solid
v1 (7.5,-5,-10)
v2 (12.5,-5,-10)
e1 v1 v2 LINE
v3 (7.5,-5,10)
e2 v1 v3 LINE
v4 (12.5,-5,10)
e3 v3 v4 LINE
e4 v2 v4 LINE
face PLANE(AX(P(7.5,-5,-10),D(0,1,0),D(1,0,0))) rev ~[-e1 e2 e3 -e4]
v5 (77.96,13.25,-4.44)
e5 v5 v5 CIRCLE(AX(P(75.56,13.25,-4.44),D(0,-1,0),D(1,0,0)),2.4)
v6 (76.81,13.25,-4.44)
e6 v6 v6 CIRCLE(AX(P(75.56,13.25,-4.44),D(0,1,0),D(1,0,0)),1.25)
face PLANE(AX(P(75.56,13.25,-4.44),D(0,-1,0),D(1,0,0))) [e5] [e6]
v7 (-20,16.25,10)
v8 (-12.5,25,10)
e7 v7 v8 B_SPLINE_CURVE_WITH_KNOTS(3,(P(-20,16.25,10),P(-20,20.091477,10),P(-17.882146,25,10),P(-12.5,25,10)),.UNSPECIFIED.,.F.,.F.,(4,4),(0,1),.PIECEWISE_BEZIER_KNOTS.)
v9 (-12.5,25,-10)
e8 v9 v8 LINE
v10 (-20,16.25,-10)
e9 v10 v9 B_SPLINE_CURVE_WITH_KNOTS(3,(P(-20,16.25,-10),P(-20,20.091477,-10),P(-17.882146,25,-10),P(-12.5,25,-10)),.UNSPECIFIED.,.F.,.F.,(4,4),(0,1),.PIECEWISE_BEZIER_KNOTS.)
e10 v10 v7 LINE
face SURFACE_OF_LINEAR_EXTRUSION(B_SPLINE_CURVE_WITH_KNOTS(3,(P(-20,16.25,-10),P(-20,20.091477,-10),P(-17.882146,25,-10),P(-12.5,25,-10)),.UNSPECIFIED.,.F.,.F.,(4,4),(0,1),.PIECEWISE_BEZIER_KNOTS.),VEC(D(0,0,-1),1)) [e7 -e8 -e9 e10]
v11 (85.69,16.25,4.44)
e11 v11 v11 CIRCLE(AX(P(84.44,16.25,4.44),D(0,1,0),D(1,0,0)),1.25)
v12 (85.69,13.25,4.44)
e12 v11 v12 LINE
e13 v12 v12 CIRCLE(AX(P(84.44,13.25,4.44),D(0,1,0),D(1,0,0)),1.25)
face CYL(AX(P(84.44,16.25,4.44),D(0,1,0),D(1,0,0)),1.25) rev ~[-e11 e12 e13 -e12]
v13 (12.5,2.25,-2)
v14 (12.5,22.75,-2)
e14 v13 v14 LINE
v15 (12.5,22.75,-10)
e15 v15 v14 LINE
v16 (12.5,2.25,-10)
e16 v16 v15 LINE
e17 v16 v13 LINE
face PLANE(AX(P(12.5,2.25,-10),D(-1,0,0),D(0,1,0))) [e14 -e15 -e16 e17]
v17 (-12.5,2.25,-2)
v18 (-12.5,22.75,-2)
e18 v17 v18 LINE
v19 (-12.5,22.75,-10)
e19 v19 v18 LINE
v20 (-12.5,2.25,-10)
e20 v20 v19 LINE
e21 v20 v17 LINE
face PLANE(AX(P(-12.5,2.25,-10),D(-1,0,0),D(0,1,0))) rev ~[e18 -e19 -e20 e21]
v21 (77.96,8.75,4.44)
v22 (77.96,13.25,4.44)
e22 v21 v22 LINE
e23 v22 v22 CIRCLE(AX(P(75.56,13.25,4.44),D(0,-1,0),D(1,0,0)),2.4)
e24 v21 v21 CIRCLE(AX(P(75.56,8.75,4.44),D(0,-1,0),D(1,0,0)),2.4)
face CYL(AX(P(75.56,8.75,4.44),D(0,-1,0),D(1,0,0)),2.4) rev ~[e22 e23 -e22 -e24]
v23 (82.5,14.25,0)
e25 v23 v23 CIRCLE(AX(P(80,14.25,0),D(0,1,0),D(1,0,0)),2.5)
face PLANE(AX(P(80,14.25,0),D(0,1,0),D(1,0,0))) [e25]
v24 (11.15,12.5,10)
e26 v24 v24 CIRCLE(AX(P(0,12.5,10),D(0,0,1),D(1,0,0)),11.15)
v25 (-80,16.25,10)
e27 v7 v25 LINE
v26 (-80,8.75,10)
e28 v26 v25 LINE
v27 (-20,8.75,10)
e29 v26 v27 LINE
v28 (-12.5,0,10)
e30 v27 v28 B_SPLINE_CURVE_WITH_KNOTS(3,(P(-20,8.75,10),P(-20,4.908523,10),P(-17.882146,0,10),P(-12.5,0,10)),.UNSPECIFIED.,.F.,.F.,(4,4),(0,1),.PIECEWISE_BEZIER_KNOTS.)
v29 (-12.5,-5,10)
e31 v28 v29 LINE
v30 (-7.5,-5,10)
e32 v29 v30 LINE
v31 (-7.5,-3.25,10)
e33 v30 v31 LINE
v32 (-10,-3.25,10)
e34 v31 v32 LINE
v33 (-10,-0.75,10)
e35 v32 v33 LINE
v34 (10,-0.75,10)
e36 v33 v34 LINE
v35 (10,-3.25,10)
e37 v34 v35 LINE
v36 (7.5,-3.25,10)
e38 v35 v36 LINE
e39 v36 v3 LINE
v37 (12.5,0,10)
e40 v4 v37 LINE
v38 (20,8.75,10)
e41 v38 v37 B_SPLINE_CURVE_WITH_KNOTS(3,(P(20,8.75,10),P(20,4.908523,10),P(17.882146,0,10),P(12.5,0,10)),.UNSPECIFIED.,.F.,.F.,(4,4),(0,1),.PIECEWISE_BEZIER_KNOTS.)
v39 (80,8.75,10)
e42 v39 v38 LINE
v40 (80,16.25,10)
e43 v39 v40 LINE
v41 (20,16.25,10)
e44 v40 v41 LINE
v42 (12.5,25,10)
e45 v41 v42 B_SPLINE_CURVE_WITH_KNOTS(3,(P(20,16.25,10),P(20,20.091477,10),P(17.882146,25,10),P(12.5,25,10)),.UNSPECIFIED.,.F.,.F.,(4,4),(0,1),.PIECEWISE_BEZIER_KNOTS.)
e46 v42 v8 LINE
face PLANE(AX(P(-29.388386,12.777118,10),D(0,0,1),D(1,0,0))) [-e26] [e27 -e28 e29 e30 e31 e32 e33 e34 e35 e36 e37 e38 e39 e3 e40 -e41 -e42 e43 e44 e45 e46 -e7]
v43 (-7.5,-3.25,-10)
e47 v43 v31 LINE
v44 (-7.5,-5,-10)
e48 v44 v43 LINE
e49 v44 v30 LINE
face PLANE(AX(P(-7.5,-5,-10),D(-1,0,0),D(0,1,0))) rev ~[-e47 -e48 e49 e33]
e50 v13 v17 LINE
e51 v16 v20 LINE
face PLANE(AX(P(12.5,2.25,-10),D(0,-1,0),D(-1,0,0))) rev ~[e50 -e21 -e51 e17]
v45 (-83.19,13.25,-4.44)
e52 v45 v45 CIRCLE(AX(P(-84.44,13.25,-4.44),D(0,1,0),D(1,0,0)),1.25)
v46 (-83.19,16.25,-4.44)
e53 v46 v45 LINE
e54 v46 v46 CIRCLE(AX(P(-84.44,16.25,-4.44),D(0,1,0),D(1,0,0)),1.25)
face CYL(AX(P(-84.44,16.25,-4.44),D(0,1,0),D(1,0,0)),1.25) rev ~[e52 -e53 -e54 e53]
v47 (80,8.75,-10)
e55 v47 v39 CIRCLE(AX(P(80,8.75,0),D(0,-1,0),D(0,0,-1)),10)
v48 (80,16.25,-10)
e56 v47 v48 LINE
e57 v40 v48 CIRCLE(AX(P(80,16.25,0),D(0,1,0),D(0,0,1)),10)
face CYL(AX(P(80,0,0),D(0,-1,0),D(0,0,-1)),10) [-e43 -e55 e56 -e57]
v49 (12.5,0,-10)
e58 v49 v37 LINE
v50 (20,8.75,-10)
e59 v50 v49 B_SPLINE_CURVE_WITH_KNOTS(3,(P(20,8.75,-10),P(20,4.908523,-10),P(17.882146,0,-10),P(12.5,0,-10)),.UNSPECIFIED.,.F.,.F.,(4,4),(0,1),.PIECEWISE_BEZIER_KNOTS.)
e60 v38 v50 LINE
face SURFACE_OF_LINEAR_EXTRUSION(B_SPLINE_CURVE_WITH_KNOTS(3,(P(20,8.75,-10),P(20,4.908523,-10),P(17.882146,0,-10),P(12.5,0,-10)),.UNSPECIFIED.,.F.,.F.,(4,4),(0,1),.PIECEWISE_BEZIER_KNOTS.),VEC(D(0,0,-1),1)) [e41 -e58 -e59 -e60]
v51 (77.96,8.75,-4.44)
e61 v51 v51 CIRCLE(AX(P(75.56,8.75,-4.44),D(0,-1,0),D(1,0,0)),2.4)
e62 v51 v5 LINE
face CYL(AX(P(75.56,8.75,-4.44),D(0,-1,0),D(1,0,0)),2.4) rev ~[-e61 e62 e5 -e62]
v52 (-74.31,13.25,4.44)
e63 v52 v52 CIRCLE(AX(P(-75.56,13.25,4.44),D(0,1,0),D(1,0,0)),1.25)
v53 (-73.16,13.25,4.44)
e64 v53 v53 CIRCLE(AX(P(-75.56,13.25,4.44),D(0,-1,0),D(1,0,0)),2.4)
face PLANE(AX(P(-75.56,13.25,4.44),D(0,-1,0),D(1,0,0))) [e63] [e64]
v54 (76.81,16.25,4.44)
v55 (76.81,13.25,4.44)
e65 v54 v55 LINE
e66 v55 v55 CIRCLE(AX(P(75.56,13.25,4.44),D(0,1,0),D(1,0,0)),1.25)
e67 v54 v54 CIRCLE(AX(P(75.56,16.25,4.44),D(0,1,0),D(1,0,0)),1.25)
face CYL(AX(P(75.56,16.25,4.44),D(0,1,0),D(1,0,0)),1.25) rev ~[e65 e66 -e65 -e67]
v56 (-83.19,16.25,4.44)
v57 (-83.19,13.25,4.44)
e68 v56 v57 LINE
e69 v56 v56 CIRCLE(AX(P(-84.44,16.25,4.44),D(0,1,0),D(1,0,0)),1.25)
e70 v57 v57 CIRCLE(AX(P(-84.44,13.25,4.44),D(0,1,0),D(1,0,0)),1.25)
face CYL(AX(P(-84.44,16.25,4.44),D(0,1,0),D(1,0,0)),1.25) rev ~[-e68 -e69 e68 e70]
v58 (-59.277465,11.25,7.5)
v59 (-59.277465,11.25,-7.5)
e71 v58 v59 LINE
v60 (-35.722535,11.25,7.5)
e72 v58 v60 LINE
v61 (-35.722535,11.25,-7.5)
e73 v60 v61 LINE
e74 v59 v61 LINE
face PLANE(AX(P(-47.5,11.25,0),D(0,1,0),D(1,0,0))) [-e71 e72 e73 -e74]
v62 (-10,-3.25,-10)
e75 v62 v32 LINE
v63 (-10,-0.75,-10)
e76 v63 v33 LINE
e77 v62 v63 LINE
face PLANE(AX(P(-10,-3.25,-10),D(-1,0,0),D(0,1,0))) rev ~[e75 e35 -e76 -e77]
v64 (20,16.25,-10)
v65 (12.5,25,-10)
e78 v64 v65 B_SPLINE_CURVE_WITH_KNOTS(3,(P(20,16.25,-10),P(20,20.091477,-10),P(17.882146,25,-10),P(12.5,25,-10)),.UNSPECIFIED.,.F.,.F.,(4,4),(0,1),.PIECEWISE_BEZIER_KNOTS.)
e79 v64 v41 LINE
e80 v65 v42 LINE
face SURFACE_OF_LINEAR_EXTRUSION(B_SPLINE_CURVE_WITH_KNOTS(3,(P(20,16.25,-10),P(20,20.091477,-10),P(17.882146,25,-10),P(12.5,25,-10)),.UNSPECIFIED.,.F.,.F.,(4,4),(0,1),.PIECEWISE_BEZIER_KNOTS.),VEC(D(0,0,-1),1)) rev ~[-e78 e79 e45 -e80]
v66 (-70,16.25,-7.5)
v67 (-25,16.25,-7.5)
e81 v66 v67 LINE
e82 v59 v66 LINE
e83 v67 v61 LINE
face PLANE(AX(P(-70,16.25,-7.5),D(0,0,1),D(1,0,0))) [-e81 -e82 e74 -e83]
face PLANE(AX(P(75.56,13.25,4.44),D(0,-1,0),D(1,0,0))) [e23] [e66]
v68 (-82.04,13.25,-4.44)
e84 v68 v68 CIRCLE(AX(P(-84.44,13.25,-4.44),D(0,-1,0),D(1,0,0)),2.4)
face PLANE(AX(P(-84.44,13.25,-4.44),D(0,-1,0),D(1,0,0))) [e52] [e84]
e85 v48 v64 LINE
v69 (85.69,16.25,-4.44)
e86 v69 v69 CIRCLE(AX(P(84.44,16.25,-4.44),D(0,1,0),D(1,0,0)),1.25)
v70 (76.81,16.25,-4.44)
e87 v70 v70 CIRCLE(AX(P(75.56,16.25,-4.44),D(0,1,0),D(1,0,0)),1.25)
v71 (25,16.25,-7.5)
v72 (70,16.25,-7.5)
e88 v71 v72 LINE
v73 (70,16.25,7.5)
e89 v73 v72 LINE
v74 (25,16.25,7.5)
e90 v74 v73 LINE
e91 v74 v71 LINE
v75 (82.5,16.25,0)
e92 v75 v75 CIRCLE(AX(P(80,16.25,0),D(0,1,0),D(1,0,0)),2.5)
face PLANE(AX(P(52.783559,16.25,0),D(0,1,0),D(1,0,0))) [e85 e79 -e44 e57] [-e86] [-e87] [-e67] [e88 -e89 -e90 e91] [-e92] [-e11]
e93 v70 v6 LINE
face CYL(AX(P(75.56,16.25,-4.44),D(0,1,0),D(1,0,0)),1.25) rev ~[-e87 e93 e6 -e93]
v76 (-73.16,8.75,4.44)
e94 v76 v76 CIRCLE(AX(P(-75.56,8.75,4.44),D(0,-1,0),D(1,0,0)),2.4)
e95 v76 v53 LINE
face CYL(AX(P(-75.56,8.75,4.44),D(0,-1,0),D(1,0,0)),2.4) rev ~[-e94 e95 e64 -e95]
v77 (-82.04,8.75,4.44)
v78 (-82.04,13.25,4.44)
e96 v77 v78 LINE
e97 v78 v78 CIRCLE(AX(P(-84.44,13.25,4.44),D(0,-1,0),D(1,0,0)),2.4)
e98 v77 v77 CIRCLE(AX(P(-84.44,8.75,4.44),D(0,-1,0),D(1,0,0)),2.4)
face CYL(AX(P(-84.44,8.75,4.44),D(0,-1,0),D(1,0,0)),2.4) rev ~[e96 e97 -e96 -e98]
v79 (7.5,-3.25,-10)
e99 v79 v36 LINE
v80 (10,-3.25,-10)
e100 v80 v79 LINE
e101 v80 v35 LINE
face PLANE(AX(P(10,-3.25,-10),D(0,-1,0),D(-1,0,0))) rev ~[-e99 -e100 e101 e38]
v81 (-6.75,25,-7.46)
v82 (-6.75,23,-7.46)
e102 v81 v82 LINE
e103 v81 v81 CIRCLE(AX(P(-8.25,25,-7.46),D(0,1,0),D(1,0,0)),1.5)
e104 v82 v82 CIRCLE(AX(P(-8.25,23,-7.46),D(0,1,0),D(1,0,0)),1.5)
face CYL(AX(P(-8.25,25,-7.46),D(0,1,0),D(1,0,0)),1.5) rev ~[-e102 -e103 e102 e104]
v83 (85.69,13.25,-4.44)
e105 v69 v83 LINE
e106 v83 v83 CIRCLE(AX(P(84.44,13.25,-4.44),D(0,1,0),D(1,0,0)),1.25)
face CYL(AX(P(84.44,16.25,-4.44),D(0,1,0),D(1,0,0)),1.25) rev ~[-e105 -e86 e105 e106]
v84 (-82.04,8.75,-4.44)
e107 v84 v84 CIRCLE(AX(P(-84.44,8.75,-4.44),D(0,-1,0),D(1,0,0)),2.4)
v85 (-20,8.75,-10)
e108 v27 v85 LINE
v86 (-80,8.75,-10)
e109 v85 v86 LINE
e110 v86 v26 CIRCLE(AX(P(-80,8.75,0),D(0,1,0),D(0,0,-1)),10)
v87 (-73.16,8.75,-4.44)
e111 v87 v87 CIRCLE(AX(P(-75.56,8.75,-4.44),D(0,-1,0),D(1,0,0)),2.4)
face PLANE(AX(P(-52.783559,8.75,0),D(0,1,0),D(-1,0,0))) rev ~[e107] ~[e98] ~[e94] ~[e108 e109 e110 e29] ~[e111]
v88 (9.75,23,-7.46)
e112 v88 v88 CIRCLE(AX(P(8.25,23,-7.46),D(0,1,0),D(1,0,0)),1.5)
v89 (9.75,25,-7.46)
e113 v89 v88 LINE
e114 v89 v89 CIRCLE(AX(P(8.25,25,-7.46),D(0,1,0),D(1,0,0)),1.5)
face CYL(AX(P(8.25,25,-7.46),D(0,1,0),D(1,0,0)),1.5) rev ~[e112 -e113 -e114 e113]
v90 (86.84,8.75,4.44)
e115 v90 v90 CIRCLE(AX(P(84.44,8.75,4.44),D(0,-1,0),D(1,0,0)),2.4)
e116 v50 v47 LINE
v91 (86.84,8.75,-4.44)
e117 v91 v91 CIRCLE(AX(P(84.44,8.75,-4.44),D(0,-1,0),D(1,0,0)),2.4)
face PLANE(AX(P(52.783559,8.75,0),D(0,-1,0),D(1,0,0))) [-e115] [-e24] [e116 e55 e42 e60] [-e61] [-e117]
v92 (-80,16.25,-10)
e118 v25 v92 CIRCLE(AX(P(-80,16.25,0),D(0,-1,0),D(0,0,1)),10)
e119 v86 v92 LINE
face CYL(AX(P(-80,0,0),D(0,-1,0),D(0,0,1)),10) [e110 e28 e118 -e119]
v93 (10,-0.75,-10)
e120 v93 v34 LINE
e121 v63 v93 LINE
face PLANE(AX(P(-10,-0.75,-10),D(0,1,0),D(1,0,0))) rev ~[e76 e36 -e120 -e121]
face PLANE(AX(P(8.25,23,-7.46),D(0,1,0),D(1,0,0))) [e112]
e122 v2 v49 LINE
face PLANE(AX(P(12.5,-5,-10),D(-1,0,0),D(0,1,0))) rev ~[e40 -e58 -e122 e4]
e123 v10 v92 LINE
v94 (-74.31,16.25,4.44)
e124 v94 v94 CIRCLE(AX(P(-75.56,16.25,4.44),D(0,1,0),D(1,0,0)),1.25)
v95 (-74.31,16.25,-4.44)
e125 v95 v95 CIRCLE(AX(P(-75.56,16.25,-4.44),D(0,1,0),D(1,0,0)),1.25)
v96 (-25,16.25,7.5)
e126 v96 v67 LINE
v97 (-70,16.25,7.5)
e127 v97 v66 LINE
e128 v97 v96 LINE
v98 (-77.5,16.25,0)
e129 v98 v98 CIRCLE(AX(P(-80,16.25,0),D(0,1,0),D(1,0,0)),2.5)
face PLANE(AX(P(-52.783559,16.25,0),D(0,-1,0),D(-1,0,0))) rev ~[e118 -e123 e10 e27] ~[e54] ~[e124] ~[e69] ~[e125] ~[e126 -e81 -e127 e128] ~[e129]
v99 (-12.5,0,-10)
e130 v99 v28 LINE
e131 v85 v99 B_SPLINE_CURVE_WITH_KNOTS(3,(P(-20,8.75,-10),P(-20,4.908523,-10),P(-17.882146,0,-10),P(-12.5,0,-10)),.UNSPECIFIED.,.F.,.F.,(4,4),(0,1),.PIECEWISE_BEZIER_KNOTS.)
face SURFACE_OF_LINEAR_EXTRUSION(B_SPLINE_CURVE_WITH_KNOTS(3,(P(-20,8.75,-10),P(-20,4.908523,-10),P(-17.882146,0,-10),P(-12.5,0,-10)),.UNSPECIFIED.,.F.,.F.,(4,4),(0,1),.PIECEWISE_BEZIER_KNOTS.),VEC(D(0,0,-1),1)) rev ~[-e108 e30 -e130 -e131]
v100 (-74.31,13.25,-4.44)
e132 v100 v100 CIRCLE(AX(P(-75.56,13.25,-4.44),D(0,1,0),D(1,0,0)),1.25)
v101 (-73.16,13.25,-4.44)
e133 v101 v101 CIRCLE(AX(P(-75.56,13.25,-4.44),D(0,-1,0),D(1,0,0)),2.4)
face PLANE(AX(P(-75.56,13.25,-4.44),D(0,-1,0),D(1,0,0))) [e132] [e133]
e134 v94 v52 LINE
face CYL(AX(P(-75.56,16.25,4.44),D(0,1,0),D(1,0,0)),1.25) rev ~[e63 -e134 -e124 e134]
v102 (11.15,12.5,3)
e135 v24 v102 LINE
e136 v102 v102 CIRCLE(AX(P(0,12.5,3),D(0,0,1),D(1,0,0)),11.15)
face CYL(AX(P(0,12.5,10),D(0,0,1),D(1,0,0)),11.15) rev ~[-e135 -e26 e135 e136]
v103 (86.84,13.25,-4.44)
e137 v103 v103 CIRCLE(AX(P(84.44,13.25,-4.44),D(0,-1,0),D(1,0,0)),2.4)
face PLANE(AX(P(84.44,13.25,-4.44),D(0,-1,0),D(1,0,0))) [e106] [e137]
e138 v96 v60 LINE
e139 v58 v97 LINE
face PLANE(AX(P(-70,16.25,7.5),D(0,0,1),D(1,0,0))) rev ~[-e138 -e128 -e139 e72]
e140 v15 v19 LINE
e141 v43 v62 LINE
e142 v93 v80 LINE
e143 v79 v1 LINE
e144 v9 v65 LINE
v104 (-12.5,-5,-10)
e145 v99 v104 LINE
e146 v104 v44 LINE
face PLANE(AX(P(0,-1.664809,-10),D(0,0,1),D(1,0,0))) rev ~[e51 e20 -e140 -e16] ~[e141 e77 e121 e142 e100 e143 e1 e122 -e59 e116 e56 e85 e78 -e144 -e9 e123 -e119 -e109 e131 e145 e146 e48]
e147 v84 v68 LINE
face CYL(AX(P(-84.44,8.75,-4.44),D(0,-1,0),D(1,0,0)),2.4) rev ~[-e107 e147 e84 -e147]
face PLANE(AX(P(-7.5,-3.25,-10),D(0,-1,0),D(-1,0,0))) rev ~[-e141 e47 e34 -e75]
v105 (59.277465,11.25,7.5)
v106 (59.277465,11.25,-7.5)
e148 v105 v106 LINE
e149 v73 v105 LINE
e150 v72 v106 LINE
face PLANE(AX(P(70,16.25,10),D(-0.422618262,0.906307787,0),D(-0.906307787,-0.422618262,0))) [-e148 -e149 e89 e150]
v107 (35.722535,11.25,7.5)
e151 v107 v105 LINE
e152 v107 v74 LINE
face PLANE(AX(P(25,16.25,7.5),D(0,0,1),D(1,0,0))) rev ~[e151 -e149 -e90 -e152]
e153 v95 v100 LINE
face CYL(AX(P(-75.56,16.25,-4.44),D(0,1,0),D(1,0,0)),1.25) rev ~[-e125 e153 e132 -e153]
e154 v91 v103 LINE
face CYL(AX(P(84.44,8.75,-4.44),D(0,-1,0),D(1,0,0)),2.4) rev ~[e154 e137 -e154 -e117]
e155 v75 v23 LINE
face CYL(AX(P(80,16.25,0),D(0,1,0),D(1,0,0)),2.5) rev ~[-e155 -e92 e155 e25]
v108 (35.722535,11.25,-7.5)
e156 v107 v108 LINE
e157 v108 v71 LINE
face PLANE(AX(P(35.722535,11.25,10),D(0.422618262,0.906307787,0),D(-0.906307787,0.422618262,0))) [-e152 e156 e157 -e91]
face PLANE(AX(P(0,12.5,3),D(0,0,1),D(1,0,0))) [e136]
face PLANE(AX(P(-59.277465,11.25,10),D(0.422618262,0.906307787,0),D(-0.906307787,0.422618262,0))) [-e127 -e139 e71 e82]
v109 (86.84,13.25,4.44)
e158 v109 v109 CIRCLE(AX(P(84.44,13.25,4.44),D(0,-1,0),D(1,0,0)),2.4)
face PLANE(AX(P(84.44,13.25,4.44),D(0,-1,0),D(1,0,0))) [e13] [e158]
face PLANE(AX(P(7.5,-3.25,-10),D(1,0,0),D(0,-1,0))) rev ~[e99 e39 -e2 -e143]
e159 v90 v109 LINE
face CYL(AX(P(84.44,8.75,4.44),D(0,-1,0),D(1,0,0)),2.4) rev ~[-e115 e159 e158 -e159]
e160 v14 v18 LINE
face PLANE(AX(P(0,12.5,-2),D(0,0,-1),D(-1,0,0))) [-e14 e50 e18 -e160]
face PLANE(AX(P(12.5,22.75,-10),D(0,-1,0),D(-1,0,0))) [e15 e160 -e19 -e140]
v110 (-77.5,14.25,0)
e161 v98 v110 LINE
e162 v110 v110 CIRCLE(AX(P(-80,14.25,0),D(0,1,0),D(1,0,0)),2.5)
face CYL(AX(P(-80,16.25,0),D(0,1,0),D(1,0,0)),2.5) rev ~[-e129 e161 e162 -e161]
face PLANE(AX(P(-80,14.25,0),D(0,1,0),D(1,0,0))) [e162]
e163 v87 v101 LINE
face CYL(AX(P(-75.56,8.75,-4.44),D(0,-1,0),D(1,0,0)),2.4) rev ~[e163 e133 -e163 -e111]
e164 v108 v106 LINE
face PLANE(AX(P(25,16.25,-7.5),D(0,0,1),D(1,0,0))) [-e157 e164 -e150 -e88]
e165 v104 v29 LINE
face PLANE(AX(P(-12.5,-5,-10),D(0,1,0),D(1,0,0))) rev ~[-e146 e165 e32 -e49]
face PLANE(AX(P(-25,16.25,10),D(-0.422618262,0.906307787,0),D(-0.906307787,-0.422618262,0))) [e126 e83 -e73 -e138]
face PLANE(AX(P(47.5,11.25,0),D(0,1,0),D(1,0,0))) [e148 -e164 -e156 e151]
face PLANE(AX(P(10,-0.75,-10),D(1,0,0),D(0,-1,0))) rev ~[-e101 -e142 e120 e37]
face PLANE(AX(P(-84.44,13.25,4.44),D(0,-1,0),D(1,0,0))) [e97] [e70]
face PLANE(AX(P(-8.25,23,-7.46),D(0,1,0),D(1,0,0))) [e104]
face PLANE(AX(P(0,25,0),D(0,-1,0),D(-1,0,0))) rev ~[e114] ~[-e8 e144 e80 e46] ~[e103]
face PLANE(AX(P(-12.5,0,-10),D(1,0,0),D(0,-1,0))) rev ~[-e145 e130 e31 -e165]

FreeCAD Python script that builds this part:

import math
import FreeCAD as App
import Part
import Sketcher
from FreeCAD import Vector
Q = App.Units.Quantity

doc = App.newDocument("Part")
body = doc.addObject("PartDesign::Body", "Body")

# Sketch on XZ plane
sketch1 = body.newObject("Sketcher::SketchObject", "Sketch")
sketch1.AttachmentSupport = (doc.getObject("XZ_Plane"), [""])
sketch1.MapMode = "FlatFace"
sketch1.addGeometry(Part.LineSegment(Vector(80, -10, 0), Vector(-80, -10, 0)), False)
sketch1.addGeometry(Part.ArcOfCircle(Part.Circle(Vector(-80, 0, 0), Vector(0, 0, 1), 10), math.radians(90), math.radians(270)), False)
sketch1.addGeometry(Part.LineSegment(Vector(-80, 10, 0), Vector(80, 10, 0)), False)
sketch1.addGeometry(Part.ArcOfCircle(Part.Circle(Vector(80, 0, 0), Vector(0, 0, 1), 10), math.radians(-90), math.radians(90)), False)
sketch1.addConstraint(Sketcher.Constraint("Tangent", 0, 2, 1, 2))
sketch1.addConstraint(Sketcher.Constraint("Tangent", 1, 1, 2, 1))
sketch1.addConstraint(Sketcher.Constraint("Tangent", 2, 2, 3, 2))
sketch1.addConstraint(Sketcher.Constraint("Tangent", 3, 1, 0, 1))
sketch1.addConstraint(Sketcher.Constraint("Horizontal", 0))
sketch1.addConstraint(Sketcher.Constraint("Horizontal", 2))
sketch1.addConstraint(Sketcher.Constraint("Symmetric", 1, 3, 3, 3, -1, 1))
sketch1.addConstraint(Sketcher.Constraint("Radius", 1, Q("10 mm")))
sketch1.addConstraint(Sketcher.Constraint("DistanceX", 0, 2, 0, 1, Q("160 mm")))
pad1 = body.newObject("PartDesign::Pad", "Pad")
pad1.Profile = sketch1
pad1.Length = 25
pad1.Reversed = True

# Sketch on XY plane
sketch2 = body.newObject("Sketcher::SketchObject", "Sketch001")
sketch2.AttachmentSupport = (doc.getObject("XY_Plane"), [""])
sketch2.MapMode = "FlatFace"
sketch2.AttachmentOffset = App.Placement(Vector(0, 0, 10), App.Rotation())
sketch2.addGeometry(Part.Circle(Vector(0, 12, 0), Vector(0, 0, 1), 11), False)
sketch2.addConstraint(Sketcher.Constraint("PointOnObject", 0, 3, -2))
sketch2.addConstraint(Sketcher.Constraint("Diameter", 0, Q("22.3 mm")))
sketch2.addConstraint(Sketcher.Constraint("DistanceY", -1, 1, 0, 3, Q("12.5 mm")))
pocket1 = body.newObject("PartDesign::Pocket", "Pocket")
pocket1.Profile = sketch2
pocket1.Length = 7

# Sketch on XZ plane
sketch3 = body.newObject("Sketcher::SketchObject", "Sketch002")
sketch3.AttachmentSupport = (doc.getObject("XZ_Plane"), [""])
sketch3.MapMode = "FlatFace"
sketch3.AttachmentOffset = App.Placement(Vector(0, 0, -25), App.Rotation())
sketch3.addGeometry(Part.LineSegment(Vector(-20, 10, 0), Vector(-20, -10, 0)), False)
sketch3.addGeometry(Part.LineSegment(Vector(-20, -10, 0), Vector(-80, -10, 0)), False)
sketch3.addGeometry(Part.ArcOfCircle(Part.Circle(Vector(-80, 0, 0), Vector(0, 0, 1), 10), math.radians(90), math.radians(270)), False)
sketch3.addGeometry(Part.LineSegment(Vector(-80, 10, 0), Vector(-20, 10, 0)), False)
sketch3.addGeometry(Part.LineSegment(Vector(20, -10, 0), Vector(20, 10, 0)), False)
sketch3.addGeometry(Part.LineSegment(Vector(20, 10, 0), Vector(80, 10, 0)), False)
sketch3.addGeometry(Part.ArcOfCircle(Part.Circle(Vector(80, 0, 0), Vector(0, 0, 1), 10), math.radians(-90), math.radians(90)), False)
sketch3.addGeometry(Part.LineSegment(Vector(80, -10, 0), Vector(20, -10, 0)), False)
sketch3.addConstraint(Sketcher.Constraint("Coincident", 0, 2, 1, 1))
sketch3.addConstraint(Sketcher.Constraint("Tangent", 1, 2, 2, 2))
sketch3.addConstraint(Sketcher.Constraint("Tangent", 2, 1, 3, 1))
sketch3.addConstraint(Sketcher.Constraint("Coincident", 3, 2, 0, 1))
sketch3.addConstraint(Sketcher.Constraint("Coincident", 4, 2, 5, 1))
sketch3.addConstraint(Sketcher.Constraint("Tangent", 5, 2, 6, 2))
sketch3.addConstraint(Sketcher.Constraint("Tangent", 6, 1, 7, 1))
sketch3.addConstraint(Sketcher.Constraint("Coincident", 7, 2, 4, 1))
sketch3.addConstraint(Sketcher.Constraint("Vertical", 0))
sketch3.addConstraint(Sketcher.Constraint("Horizontal", 1))
sketch3.addConstraint(Sketcher.Constraint("Horizontal", 3))
sketch3.addConstraint(Sketcher.Constraint("Vertical", 4))
sketch3.addConstraint(Sketcher.Constraint("Horizontal", 5))
sketch3.addConstraint(Sketcher.Constraint("Horizontal", 7))
sketch3.addConstraint(Sketcher.Constraint("Equal", 2, 6))
sketch3.addConstraint(Sketcher.Constraint("Symmetric", 2, 3, 6, 3, -1, 1))
sketch3.addConstraint(Sketcher.Constraint("Symmetric", 3, 2, 4, 2, -2))
sketch3.addConstraint(Sketcher.Constraint("Radius", 2, Q("10 mm")))
sketch3.addConstraint(Sketcher.Constraint("DistanceX", 1, 2, 1, 1, Q("60 mm")))
sketch3.addConstraint(Sketcher.Constraint("DistanceX", 2, 3, -1, 1, Q("80 mm")))
pocket2 = body.newObject("PartDesign::Pocket", "Pocket001")
pocket2.Profile = sketch3
pocket2.Length = 8.75
pocket2.Reversed = True

# Sketch on XZ plane
sketch4 = body.newObject("Sketcher::SketchObject", "Sketch003")
sketch4.AttachmentSupport = (doc.getObject("XZ_Plane"), [""])
sketch4.MapMode = "FlatFace"
sketch4.addGeometry(Part.LineSegment(Vector(20, 10, 0), Vector(20, -10, 0)), False)
sketch4.addGeometry(Part.LineSegment(Vector(20, -10, 0), Vector(80, -10, 0)), False)
sketch4.addGeometry(Part.ArcOfCircle(Part.Circle(Vector(80, 0, 0), Vector(0, 0, 1), 10), math.radians(-90), math.radians(90)), False)
sketch4.addGeometry(Part.LineSegment(Vector(80, 10, 0), Vector(20, 10, 0)), False)
sketch4.addGeometry(Part.LineSegment(Vector(-20, -10, 0), Vector(-20, 10, 0)), False)
sketch4.addGeometry(Part.LineSegment(Vector(-20, 10, 0), Vector(-80, 10, 0)), False)
sketch4.addGeometry(Part.ArcOfCircle(Part.Circle(Vector(-80, 0, 0), Vector(0, 0, 1), 10), math.radians(90), math.radians(270)), False)
sketch4.addGeometry(Part.LineSegment(Vector(-80, -10, 0), Vector(-20, -10, 0)), False)
sketch4.addConstraint(Sketcher.Constraint("Coincident", 0, 2, 1, 1))
sketch4.addConstraint(Sketcher.Constraint("Tangent", 1, 2, 2, 1))
sketch4.addConstraint(Sketcher.Constraint("Tangent", 2, 2, 3, 1))
sketch4.addConstraint(Sketcher.Constraint("Coincident", 3, 2, 0, 1))
sketch4.addConstraint(Sketcher.Constraint("Coincident", 4, 2, 5, 1))
sketch4.addConstraint(Sketcher.Constraint("Tangent", 5, 2, 6, 1))
sketch4.addConstraint(Sketcher.Constraint("Tangent", 6, 2, 7, 1))
sketch4.addConstraint(Sketcher.Constraint("Coincident", 7, 2, 4, 1))
sketch4.addConstraint(Sketcher.Constraint("Vertical", 0))
sketch4.addConstraint(Sketcher.Constraint("Horizontal", 1))
sketch4.addConstraint(Sketcher.Constraint("Horizontal", 3))
sketch4.addConstraint(Sketcher.Constraint("Vertical", 4))
sketch4.addConstraint(Sketcher.Constraint("Horizontal", 5))
sketch4.addConstraint(Sketcher.Constraint("Horizontal", 7))
sketch4.addConstraint(Sketcher.Constraint("Equal", 2, 6))
sketch4.addConstraint(Sketcher.Constraint("Symmetric", 2, 3, 6, 3, -1, 1))
sketch4.addConstraint(Sketcher.Constraint("Symmetric", 3, 2, 4, 2, -2))
sketch4.addConstraint(Sketcher.Constraint("Radius", 2, Q("10 mm")))
sketch4.addConstraint(Sketcher.Constraint("DistanceX", 1, 1, 1, 2, Q("60 mm")))
sketch4.addConstraint(Sketcher.Constraint("DistanceX", -1, 1, 2, 3, Q("80 mm")))
pocket3 = body.newObject("PartDesign::Pocket", "Pocket002")
pocket3.Profile = sketch4
pocket3.Length = 8.75

# Sketch on XY plane
sketch5 = body.newObject("Sketcher::SketchObject", "Sketch004")
sketch5.AttachmentSupport = (doc.getObject("XY_Plane"), [""])
sketch5.MapMode = "FlatFace"
sketch5.AttachmentOffset = App.Placement(Vector(0, 0, -10), App.Rotation())
sketch5.addGeometry(Part.LineSegment(Vector(12, 23, 0), Vector(12, 2, 0)), False)
sketch5.addGeometry(Part.LineSegment(Vector(12, 2, 0), Vector(-12, 2, 0)), False)
sketch5.addGeometry(Part.LineSegment(Vector(-12, 2, 0), Vector(-12, 23, 0)), False)
sketch5.addGeometry(Part.LineSegment(Vector(-12, 23, 0), Vector(12, 23, 0)), False)
sketch5.addConstraint(Sketcher.Constraint("Coincident", 0, 2, 1, 1))
sketch5.addConstraint(Sketcher.Constraint("Coincident", 1, 2, 2, 1))
sketch5.addConstraint(Sketcher.Constraint("Coincident", 2, 2, 3, 1))
sketch5.addConstraint(Sketcher.Constraint("Coincident", 3, 2, 0, 1))
sketch5.addConstraint(Sketcher.Constraint("Vertical", 0))
sketch5.addConstraint(Sketcher.Constraint("Horizontal", 1))
sketch5.addConstraint(Sketcher.Constraint("Vertical", 2))
sketch5.addConstraint(Sketcher.Constraint("Horizontal", 3))
sketch5.addConstraint(Sketcher.Constraint("DistanceX", 1, 2, 1, 1, Q("25 mm")))
sketch5.addConstraint(Sketcher.Constraint("DistanceY", 0, 2, 0, 1, Q("20.5 mm")))
sketch5.addConstraint(Sketcher.Constraint("DistanceX", -1, 1, 0, 2, Q("12.5 mm")))
sketch5.addConstraint(Sketcher.Constraint("DistanceY", -1, 1, 0, 2, Q("2.25 mm")))
pocket4 = body.newObject("PartDesign::Pocket", "Pocket003")
pocket4.Profile = sketch5
pocket4.Length = 8
pocket4.Reversed = True

# Sketch on XZ plane
sketch6 = body.newObject("Sketcher::SketchObject", "Sketch005")
sketch6.AttachmentSupport = (doc.getObject("XZ_Plane"), [""])
sketch6.MapMode = "FlatFace"
sketch6.AttachmentOffset = App.Placement(Vector(0, 0, -16.25), App.Rotation())
sketch6.addGeometry(Part.Circle(Vector(-80, 0, 0), Vector(0, 0, 1), 2.5), False)
sketch6.addGeometry(Part.Circle(Vector(80, 0, 0), Vector(0, 0, 1), 2.5), False)
sketch6.addConstraint(Sketcher.Constraint("Equal", 0, 1))
sketch6.addConstraint(Sketcher.Constraint("Symmetric", 0, 3, 1, 3, -1, 1))
sketch6.addConstraint(Sketcher.Constraint("PointOnObject", 0, 3, -1))
sketch6.addConstraint(Sketcher.Constraint("Diameter", 0, Q("5 mm")))
sketch6.addConstraint(Sketcher.Constraint("DistanceX", 0, 3, -1, 1, Q("80 mm")))
pocket5 = body.newObject("PartDesign::Pocket", "Pocket004")
pocket5.Profile = sketch6
pocket5.Length = 2
pocket5.Reversed = True

# Sketch on XZ plane
sketch7 = body.newObject("Sketcher::SketchObject", "Sketch006")
sketch7.AttachmentSupport = (doc.getObject("XZ_Plane"), [""])
sketch7.MapMode = "FlatFace"
sketch7.AttachmentOffset = App.Placement(Vector(0, 0, -16.25), App.Rotation())
sketch7.addGeometry(Part.Circle(Vector(-75.6, -4.4, 0), Vector(0, 0, 1), 1.2), False)
sketch7.addConstraint(Sketcher.Constraint("Diameter", 0, Q("2.5 mm")))
sketch7.addConstraint(Sketcher.Constraint("DistanceX", 0, 3, -1, 1, Q("75.56 mm")))
sketch7.addConstraint(Sketcher.Constraint("DistanceY", 0, 3, -1, 1, Q("4.44 mm")))
pocket6 = body.newObject("PartDesign::Pocket", "Pocket005")
pocket6.Profile = sketch7
pocket6.Type = "UpToFirst"
pocket6.Reversed = True

# Sketch on XZ plane
sketch8 = body.newObject("Sketcher::SketchObject", "Sketch007")
sketch8.AttachmentSupport = (doc.getObject("XZ_Plane"), [""])
sketch8.MapMode = "FlatFace"
sketch8.AttachmentOffset = App.Placement(Vector(0, 0, -16.25), App.Rotation())
sketch8.addGeometry(Part.Circle(Vector(-75.6, 4.4, 0), Vector(0, 0, 1), 1.2), False)
sketch8.addConstraint(Sketcher.Constraint("Diameter", 0, Q("2.5 mm")))
sketch8.addConstraint(Sketcher.Constraint("DistanceX", 0, 3, -1, 1, Q("75.56 mm")))
sketch8.addConstraint(Sketcher.Constraint("DistanceY", -1, 1, 0, 3, Q("4.44 mm")))
pocket7 = body.newObject("PartDesign::Pocket", "Pocket006")
pocket7.Profile = sketch8
pocket7.Type = "UpToFirst"
pocket7.Reversed = True

# Sketch on XZ plane
sketch9 = body.newObject("Sketcher::SketchObject", "Sketch008")
sketch9.AttachmentSupport = (doc.getObject("XZ_Plane"), [""])
sketch9.MapMode = "FlatFace"
sketch9.AttachmentOffset = App.Placement(Vector(0, 0, -16.25), App.Rotation())
sketch9.addGeometry(Part.Circle(Vector(-84.4, 4.4, 0), Vector(0, 0, 1), 1.2), False)
sketch9.addConstraint(Sketcher.Constraint("Diameter", 0, Q("2.5 mm")))
sketch9.addConstraint(Sketcher.Constraint("DistanceX", 0, 3, -1, 1, Q("84.44 mm")))
sketch9.addConstraint(Sketcher.Constraint("DistanceY", -1, 1, 0, 3, Q("4.44 mm")))
pocket8 = body.newObject("PartDesign::Pocket", "Pocket007")
pocket8.Profile = sketch9
pocket8.Type = "UpToFirst"
pocket8.Reversed = True

# Sketch on XZ plane
sketch10 = body.newObject("Sketcher::SketchObject", "Sketch009")
sketch10.AttachmentSupport = (doc.getObject("XZ_Plane"), [""])
sketch10.MapMode = "FlatFace"
sketch10.AttachmentOffset = App.Placement(Vector(0, 0, -16.25), App.Rotation())
sketch10.addGeometry(Part.Circle(Vector(-84.4, -4.4, 0), Vector(0, 0, 1), 1.2), False)
sketch10.addConstraint(Sketcher.Constraint("Diameter", 0, Q("2.5 mm")))
sketch10.addConstraint(Sketcher.Constraint("DistanceX", 0, 3, -1, 1, Q("84.44 mm")))
sketch10.addConstraint(Sketcher.Constraint("DistanceY", 0, 3, -1, 1, Q("4.44 mm")))
pocket9 = body.newObject("PartDesign::Pocket", "Pocket008")
pocket9.Profile = sketch10
pocket9.Type = "UpToFirst"
pocket9.Reversed = True

# Sketch on XZ plane
sketch11 = body.newObject("Sketcher::SketchObject", "Sketch010")
sketch11.AttachmentSupport = (doc.getObject("XZ_Plane"), [""])
sketch11.MapMode = "FlatFace"
sketch11.AttachmentOffset = App.Placement(Vector(0, 0, -16.25), App.Rotation())
sketch11.addGeometry(Part.Circle(Vector(84.4, -4.4, 0), Vector(0, 0, 1), 1.2), False)
sketch11.addConstraint(Sketcher.Constraint("Diameter", 0, Q("2.5 mm")))
sketch11.addConstraint(Sketcher.Constraint("DistanceX", -1, 1, 0, 3, Q("84.44 mm")))
sketch11.addConstraint(Sketcher.Constraint("DistanceY", 0, 3, -1, 1, Q("4.44 mm")))
pocket10 = body.newObject("PartDesign::Pocket", "Pocket009")
pocket10.Profile = sketch11
pocket10.Type = "UpToFirst"
pocket10.Reversed = True

# Sketch on XZ plane
sketch12 = body.newObject("Sketcher::SketchObject", "Sketch011")
sketch12.AttachmentSupport = (doc.getObject("XZ_Plane"), [""])
sketch12.MapMode = "FlatFace"
sketch12.AttachmentOffset = App.Placement(Vector(0, 0, -16.25), App.Rotation())
sketch12.addGeometry(Part.Circle(Vector(84.4, 4.4, 0), Vector(0, 0, 1), 1.2), False)
sketch12.addConstraint(Sketcher.Constraint("Diameter", 0, Q("2.5 mm")))
sketch12.addConstraint(Sketcher.Constraint("DistanceX", -1, 1, 0, 3, Q("84.44 mm")))
sketch12.addConstraint(Sketcher.Constraint("DistanceY", -1, 1, 0, 3, Q("4.44 mm")))
pocket11 = body.newObject("PartDesign::Pocket", "Pocket010")
pocket11.Profile = sketch12
pocket11.Type = "UpToFirst"
pocket11.Reversed = True

# Sketch on XZ plane
sketch13 = body.newObject("Sketcher::SketchObject", "Sketch012")
sketch13.AttachmentSupport = (doc.getObject("XZ_Plane"), [""])
sketch13.MapMode = "FlatFace"
sketch13.AttachmentOffset = App.Placement(Vector(0, 0, -16.25), App.Rotation())
sketch13.addGeometry(Part.Circle(Vector(75.6, 4.4, 0), Vector(0, 0, 1), 1.2), False)
sketch13.addConstraint(Sketcher.Constraint("Diameter", 0, Q("2.5 mm")))
sketch13.addConstraint(Sketcher.Constraint("DistanceX", -1, 1, 0, 3, Q("75.56 mm")))
sketch13.addConstraint(Sketcher.Constraint("DistanceY", -1, 1, 0, 3, Q("4.44 mm")))
pocket12 = body.newObject("PartDesign::Pocket", "Pocket011")
pocket12.Profile = sketch13
pocket12.Type = "UpToFirst"
pocket12.Reversed = True

# Sketch on XZ plane
sketch14 = body.newObject("Sketcher::SketchObject", "Sketch013")
sketch14.AttachmentSupport = (doc.getObject("XZ_Plane"), [""])
sketch14.MapMode = "FlatFace"
sketch14.AttachmentOffset = App.Placement(Vector(0, 0, -16.25), App.Rotation())
sketch14.addGeometry(Part.Circle(Vector(75.6, -4.4, 0), Vector(0, 0, 1), 1.2), False)
sketch14.addConstraint(Sketcher.Constraint("Diameter", 0, Q("2.5 mm")))
sketch14.addConstraint(Sketcher.Constraint("DistanceX", -1, 1, 0, 3, Q("75.56 mm")))
sketch14.addConstraint(Sketcher.Constraint("DistanceY", 0, 3, -1, 1, Q("4.44 mm")))
pocket13 = body.newObject("PartDesign::Pocket", "Pocket012")
pocket13.Profile = sketch14
pocket13.Type = "UpToFirst"
pocket13.Reversed = True

# Sketch on XZ plane
sketch15 = body.newObject("Sketcher::SketchObject", "Sketch014")
sketch15.AttachmentSupport = (doc.getObject("XZ_Plane"), [""])
sketch15.MapMode = "FlatFace"
sketch15.AttachmentOffset = App.Placement(Vector(0, 0, -8.75), App.Rotation())
sketch15.addGeometry(Part.Circle(Vector(-75.6, 4.4, 0), Vector(0, 0, 1), 2.4), False)
sketch15.addGeometry(Part.Circle(Vector(-75.6, -4.4, 0), Vector(0, 0, 1), 2.4), False)
sketch15.addGeometry(Part.Circle(Vector(-84.4, -4.4, 0), Vector(0, 0, 1), 2.4), False)
sketch15.addGeometry(Part.Circle(Vector(-84.4, 4.4, 0), Vector(0, 0, 1), 2.4), False)
sketch15.addGeometry(Part.Circle(Vector(84.4, 4.4, 0), Vector(0, 0, 1), 2.4), False)
sketch15.addGeometry(Part.Circle(Vector(84.4, -4.4, 0), Vector(0, 0, 1), 2.4), False)
sketch15.addGeometry(Part.Circle(Vector(75.6, -4.4, 0), Vector(0, 0, 1), 2.4), False)
sketch15.addGeometry(Part.Circle(Vector(75.6, 4.4, 0), Vector(0, 0, 1), 2.4), False)
sketch15.addConstraint(Sketcher.Constraint("Equal", 0, 1))
sketch15.addConstraint(Sketcher.Constraint("Equal", 1, 2))
sketch15.addConstraint(Sketcher.Constraint("Equal", 2, 3))
sketch15.addConstraint(Sketcher.Constraint("Equal", 3, 4))
sketch15.addConstraint(Sketcher.Constraint("Equal", 4, 5))
sketch15.addConstraint(Sketcher.Constraint("Equal", 5, 6))
sketch15.addConstraint(Sketcher.Constraint("Equal", 6, 7))
sketch15.addConstraint(Sketcher.Constraint("Symmetric", 2, 3, 4, 3, -1, 1))
sketch15.addConstraint(Sketcher.Constraint("Symmetric", 3, 3, 5, 3, -1, 1))
sketch15.addConstraint(Sketcher.Constraint("Symmetric", 0, 3, 6, 3, -1, 1))
sketch15.addConstraint(Sketcher.Constraint("Symmetric", 1, 3, 7, 3, -1, 1))
sketch15.addConstraint(Sketcher.Constraint("Symmetric", 3, 3, 4, 3, -2))
sketch15.addConstraint(Sketcher.Constraint("Symmetric", 1, 3, 6, 3, -2))
sketch15.addConstraint(Sketcher.Constraint("Horizontal", 1, 3, 2, 3))
sketch15.addConstraint(Sketcher.Constraint("Diameter", 0, Q("4.8 mm")))
sketch15.addConstraint(Sketcher.Constraint("DistanceX", 0, 3, 4, 3, Q("160 mm")))
sketch15.addConstraint(Sketcher.Constraint("DistanceX", 0, 3, -1, 1, Q("75.56 mm")))
sketch15.addConstraint(Sketcher.Constraint("DistanceY", -1, 1, 0, 3, Q("4.44 mm")))
pocket14 = body.newObject("PartDesign::Pocket", "Pocket013")
pocket14.Profile = sketch15
pocket14.Length = 4.5

# Sketch on XZ plane
sketch16 = body.newObject("Sketcher::SketchObject", "Sketch015")
sketch16.AttachmentSupport = (doc.getObject("XZ_Plane"), [""])
sketch16.MapMode = "FlatFace"
sketch16.AttachmentOffset = App.Placement(Vector(0, 0, -25), App.Rotation())
sketch16.addGeometry(Part.Circle(Vector(-8.2, -7.5, 0), Vector(0, 0, 1), 1.5), False)
sketch16.addGeometry(Part.Circle(Vector(8.2, -7.5, 0), Vector(0, 0, 1), 1.5), False)
sketch16.addConstraint(Sketcher.Constraint("Equal", 0, 1))
sketch16.addConstraint(Sketcher.Constraint("Symmetric", 0, 3, 1, 3, -2))
sketch16.addConstraint(Sketcher.Constraint("Diameter", 0, Q("3 mm")))
sketch16.addConstraint(Sketcher.Constraint("DistanceX", 0, 3, 1, 3, Q("16.5 mm")))
sketch16.addConstraint(Sketcher.Constraint("DistanceY", 0, 3, -1, 1, Q("7.46 mm")))
pocket15 = body.newObject("PartDesign::Pocket", "Pocket014")
pocket15.Profile = sketch16
pocket15.Length = 2
pocket15.Reversed = True

# Sketch on XY plane
sketch17 = body.newObject("Sketcher::SketchObject", "Sketch016")
sketch17.AttachmentSupport = (doc.getObject("XY_Plane"), [""])
sketch17.MapMode = "FlatFace"
sketch17.AttachmentOffset = App.Placement(Vector(0, 0, -10), App.Rotation())
sketch17.addGeometry(Part.LineSegment(Vector(12.5, 25, 0), Vector(20, 25, 0)), False)
sketch17.addGeometry(Part.LineSegment(Vector(20, 25, 0), Vector(20, 16.25, 0)), False)
sketch17.addGeometry(Part.BSplineCurve([Vector(20, 16.25, 0), Vector(20, 20.091477, 0), Vector(17.882146, 25, 0), Vector(12.5, 25, 0)], [4, 4], [0, 1], False, 3, [1, 1, 1, 1], False), False)
sketch17.addGeometry(Part.LineSegment(Vector(-20, 25, 0), Vector(-12.5, 25, 0)), False)
sketch17.addGeometry(Part.BSplineCurve([Vector(-20, 16.25, 0), Vector(-20, 20.091477, 0), Vector(-17.882146, 25, 0), Vector(-12.5, 25, 0)], [4, 4], [0, 1], False, 3, [1, 1, 1, 1], False), False)
sketch17.addGeometry(Part.LineSegment(Vector(-20, 16.25, 0), Vector(-20, 25, 0)), False)
sketch17.addGeometry(Part.LineSegment(Vector(-20, 0, 0), Vector(-20, 8.75, 0)), False)
sketch17.addGeometry(Part.BSplineCurve([Vector(-20, 8.75, 0), Vector(-20, 4.908523, 0), Vector(-17.882146, 0, 0), Vector(-12.5, 0, 0)], [4, 4], [0, 1], False, 3, [1, 1, 1, 1], False), False)
sketch17.addGeometry(Part.LineSegment(Vector(-12.5, 0, 0), Vector(-20, 0, 0)), False)
sketch17.addGeometry(Part.LineSegment(Vector(20, 8.75, 0), Vector(20, 0, 0)), False)
sketch17.addGeometry(Part.LineSegment(Vector(20, 0, 0), Vector(12.5, 0, 0)), False)
sketch17.addGeometry(Part.BSplineCurve([Vector(20, 8.75, 0), Vector(20, 4.908523, 0), Vector(17.882146, 0, 0), Vector(12.5, 0, 0)], [4, 4], [0, 1], False, 3, [1, 1, 1, 1], False), False)
sketch17.addConstraint(Sketcher.Constraint("Block", 2))
sketch17.addConstraint(Sketcher.Constraint("Block", 4))
sketch17.addConstraint(Sketcher.Constraint("Block", 7))
sketch17.addConstraint(Sketcher.Constraint("Block", 11))
sketch17.addConstraint(Sketcher.Constraint("Coincident", 0, 2, 1, 1))
sketch17.addConstraint(Sketcher.Constraint("Coincident", 1, 2, 2, 1))
sketch17.addConstraint(Sketcher.Constraint("Coincident", 2, 2, 0, 1))
sketch17.addConstraint(Sketcher.Constraint("Coincident", 3, 2, 4, 2))
sketch17.addConstraint(Sketcher.Constraint("Coincident", 4, 1, 5, 1))
sketch17.addConstraint(Sketcher.Constraint("Coincident", 5, 2, 3, 1))
sketch17.addConstraint(Sketcher.Constraint("Coincident", 6, 2, 7, 1))
sketch17.addConstraint(Sketcher.Constraint("Coincident", 7, 2, 8, 1))
sketch17.addConstraint(Sketcher.Constraint("Coincident", 8, 2, 6, 1))
sketch17.addConstraint(Sketcher.Constraint("Coincident", 9, 2, 10, 1))
sketch17.addConstraint(Sketcher.Constraint("Coincident", 10, 2, 11, 2))
sketch17.addConstraint(Sketcher.Constraint("Coincident", 11, 1, 9, 1))
sketch17.addConstraint(Sketcher.Constraint("Horizontal", 0))
sketch17.addConstraint(Sketcher.Constraint("Vertical", 1))
sketch17.addConstraint(Sketcher.Constraint("Horizontal", 3))
sketch17.addConstraint(Sketcher.Constraint("Vertical", 5))
sketch17.addConstraint(Sketcher.Constraint("Vertical", 6))
sketch17.addConstraint(Sketcher.Constraint("Horizontal", 8))
sketch17.addConstraint(Sketcher.Constraint("Vertical", 9))
sketch17.addConstraint(Sketcher.Constraint("Horizontal", 10))
pocket16 = body.newObject("PartDesign::Pocket", "Pocket015")
pocket16.Profile = sketch17
pocket16.Length = 20
pocket16.Reversed = True

# Sketch on XY plane
sketch18 = body.newObject("Sketcher::SketchObject", "Sketch017")
sketch18.AttachmentSupport = (doc.getObject("XY_Plane"), [""])
sketch18.MapMode = "FlatFace"
sketch18.AttachmentOffset = App.Placement(Vector(0, 0, -10), App.Rotation())
sketch18.addGeometry(Part.LineSegment(Vector(-12.5, -5, 0), Vector(-12.5, 0, 0)), False)
sketch18.addGeometry(Part.LineSegment(Vector(-12.5, 0, 0), Vector(12.5, 0, 0)), False)
sketch18.addGeometry(Part.LineSegment(Vector(12.5, 0, 0), Vector(12.5, -5, 0)), False)
sketch18.addGeometry(Part.LineSegment(Vector(12.5, -5, 0), Vector(7.5, -5, 0)), False)
sketch18.addGeometry(Part.LineSegment(Vector(7.5, -5, 0), Vector(7.5, -3.2, 0)), False)
sketch18.addGeometry(Part.LineSegment(Vector(7.5, -3.2, 0), Vector(10, -3.2, 0)), False)
sketch18.addGeometry(Part.LineSegment(Vector(10, -3.2, 0), Vector(10, -0.8, 0)), False)
sketch18.addGeometry(Part.LineSegment(Vector(10, -0.8, 0), Vector(-10, -0.8, 0)), False)
sketch18.addGeometry(Part.LineSegment(Vector(-10, -0.8, 0), Vector(-10, -3.2, 0)), False)
sketch18.addGeometry(Part.LineSegment(Vector(-10, -3.2, 0), Vector(-7.5, -3.2, 0)), False)
sketch18.addGeometry(Part.LineSegment(Vector(-7.5, -3.2, 0), Vector(-7.5, -5, 0)), False)
sketch18.addGeometry(Part.LineSegment(Vector(-7.5, -5, 0), Vector(-12.5, -5, 0)), False)
sketch18.addConstraint(Sketcher.Constraint("Coincident", 0, 2, 1, 1))
sketch18.addConstraint(Sketcher.Constraint("Coincident", 1, 2, 2, 1))
sketch18.addConstraint(Sketcher.Constraint("Coincident", 2, 2, 3, 1))
sketch18.addConstraint(Sketcher.Constraint("Coincident", 3, 2, 4, 1))
sketch18.addConstraint(Sketcher.Constraint("Coincident", 4, 2, 5, 1))
sketch18.addConstraint(Sketcher.Constraint("Coincident", 5, 2, 6, 1))
sketch18.addConstraint(Sketcher.Constraint("Coincident", 6, 2, 7, 1))
sketch18.addConstraint(Sketcher.Constraint("Coincident", 7, 2, 8, 1))
sketch18.addConstraint(Sketcher.Constraint("Coincident", 8, 2, 9, 1))
sketch18.addConstraint(Sketcher.Constraint("Coincident", 9, 2, 10, 1))
sketch18.addConstraint(Sketcher.Constraint("Coincident", 10, 2, 11, 1))
sketch18.addConstraint(Sketcher.Constraint("Coincident", 11, 2, 0, 1))
sketch18.addConstraint(Sketcher.Constraint("Vertical", 0))
sketch18.addConstraint(Sketcher.Constraint("Horizontal", 1))
sketch18.addConstraint(Sketcher.Constraint("Vertical", 2))
sketch18.addConstraint(Sketcher.Constraint("Horizontal", 3))
sketch18.addConstraint(Sketcher.Constraint("Vertical", 4))
sketch18.addConstraint(Sketcher.Constraint("Horizontal", 5))
sketch18.addConstraint(Sketcher.Constraint("Vertical", 6))
sketch18.addConstraint(Sketcher.Constraint("Horizontal", 7))
sketch18.addConstraint(Sketcher.Constraint("Vertical", 8))
sketch18.addConstraint(Sketcher.Constraint("Horizontal", 9))
sketch18.addConstraint(Sketcher.Constraint("Vertical", 10))
sketch18.addConstraint(Sketcher.Constraint("Horizontal", 11))
sketch18.addConstraint(Sketcher.Constraint("Symmetric", 0, 2, 1, 2, -1, 1))
sketch18.addConstraint(Sketcher.Constraint("Symmetric", 5, 2, 8, 2, -2))
sketch18.addConstraint(Sketcher.Constraint("Symmetric", 3, 2, 10, 2, -2))
sketch18.addConstraint(Sketcher.Constraint("Equal", 11, 0))
sketch18.addConstraint(Sketcher.Constraint("Equal", 9, 6))
sketch18.addConstraint(Sketcher.Constraint("DistanceX", 1, 1, 1, 2, Q("25 mm")))
sketch18.addConstraint(Sketcher.Constraint("DistanceX", 3, 2, 3, 1, Q("5 mm")))
sketch18.addConstraint(Sketcher.Constraint("DistanceX", 7, 2, 7, 1, Q("20 mm")))
sketch18.addConstraint(Sketcher.Constraint("DistanceY", 4, 1, 4, 2, Q("1.75 mm")))
pad2 = body.newObject("PartDesign::Pad", "Pad001")
pad2.Profile = sketch18
pad2.Length = 20

# Sketch on XZ plane
sketch19 = body.newObject("Sketcher::SketchObject", "Sketch018")
sketch19.AttachmentSupport = (doc.getObject("XZ_Plane"), [""])
sketch19.MapMode = "FlatFace"
sketch19.AttachmentOffset = App.Placement(Vector(0, 0, -16.25), App.Rotation())
sketch19.addGeometry(Part.LineSegment(Vector(25, -8, 0), Vector(25, 8, 0)), False)
sketch19.addGeometry(Part.LineSegment(Vector(25, 8, 0), Vector(70, 8, 0)), False)
sketch19.addGeometry(Part.LineSegment(Vector(70, 8, 0), Vector(70, -8, 0)), False)
sketch19.addGeometry(Part.LineSegment(Vector(70, -8, 0), Vector(25, -8, 0)), False)
sketch19.addGeometry(Part.LineSegment(Vector(-70, -8, 0), Vector(-70, 8, 0)), False)
sketch19.addGeometry(Part.LineSegment(Vector(-70, 8, 0), Vector(-25, 8, 0)), False)
sketch19.addGeometry(Part.LineSegment(Vector(-25, 8, 0), Vector(-25, -8, 0)), False)
sketch19.addGeometry(Part.LineSegment(Vector(-25, -8, 0), Vector(-70, -8, 0)), False)
sketch19.addConstraint(Sketcher.Constraint("Coincident", 0, 2, 1, 1))
sketch19.addConstraint(Sketcher.Constraint("Coincident", 1, 2, 2, 1))
sketch19.addConstraint(Sketcher.Constraint("Coincident", 2, 2, 3, 1))
sketch19.addConstraint(Sketcher.Constraint("Coincident", 3, 2, 0, 1))
sketch19.addConstraint(Sketcher.Constraint("Coincident", 4, 2, 5, 1))
sketch19.addConstraint(Sketcher.Constraint("Coincident", 5, 2, 6, 1))
sketch19.addConstraint(Sketcher.Constraint("Coincident", 6, 2, 7, 1))
sketch19.addConstraint(Sketcher.Constraint("Coincident", 7, 2, 4, 1))
sketch19.addConstraint(Sketcher.Constraint("Vertical", 0))
sketch19.addConstraint(Sketcher.Constraint("Horizontal", 1))
sketch19.addConstraint(Sketcher.Constraint("Vertical", 2))
sketch19.addConstraint(Sketcher.Constraint("Horizontal", 3))
sketch19.addConstraint(Sketcher.Constraint("Vertical", 4))
sketch19.addConstraint(Sketcher.Constraint("Horizontal", 5))
sketch19.addConstraint(Sketcher.Constraint("Vertical", 6))
sketch19.addConstraint(Sketcher.Constraint("Horizontal", 7))
sketch19.addConstraint(Sketcher.Constraint("Symmetric", 2, 2, 4, 2, -1, 1))
sketch19.addConstraint(Sketcher.Constraint("Symmetric", 0, 2, 6, 2, -1, 1))
sketch19.addConstraint(Sketcher.Constraint("Horizontal", 1, 2, 4, 2))
sketch19.addConstraint(Sketcher.Constraint("DistanceX", 1, 1, 1, 2, Q("45 mm")))
sketch19.addConstraint(Sketcher.Constraint("DistanceY", 0, 1, 0, 2, Q("15 mm")))
sketch19.addConstraint(Sketcher.Constraint("DistanceX", -1, 1, 0, 2, Q("25 mm")))
pocket17 = body.newObject("PartDesign::Pocket", "Pocket016")
pocket17.Profile = sketch19
pocket17.Length = 5
pocket17.Reversed = True

# Sketch on XY plane
sketch20 = body.newObject("Sketcher::SketchObject", "Sketch019")
sketch20.AttachmentSupport = (doc.getObject("XY_Plane"), [""])
sketch20.MapMode = "FlatFace"
sketch20.AttachmentOffset = App.Placement(Vector(0, 0, 10), App.Rotation())
sketch20.addGeometry(Part.LineSegment(Vector(-25, 11, 0), Vector(-25, 16, 0)), False)
sketch20.addGeometry(Part.LineSegment(Vector(-25, 16, 0), Vector(-36, 11, 0)), False)
sketch20.addGeometry(Part.LineSegment(Vector(-36, 11, 0), Vector(-25, 11, 0)), False)
sketch20.addGeometry(Part.LineSegment(Vector(-70, 11, 0), Vector(-59, 11, 0)), False)
sketch20.addGeometry(Part.LineSegment(Vector(-59, 11, 0), Vector(-70, 16, 0)), False)
sketch20.addGeometry(Part.LineSegment(Vector(-70, 16, 0), Vector(-70, 11, 0)), False)
sketch20.addGeometry(Part.LineSegment(Vector(25, 11, 0), Vector(36, 11, 0)), False)
sketch20.addGeometry(Part.LineSegment(Vector(36, 11, 0), Vector(25, 16, 0)), False)
sketch20.addGeometry(Part.LineSegment(Vector(25, 16, 0), Vector(25, 11, 0)), False)
sketch20.addGeometry(Part.LineSegment(Vector(70, 11, 0), Vector(70, 16, 0)), False)
sketch20.addGeometry(Part.LineSegment(Vector(70, 16, 0), Vector(59, 11, 0)), False)
sketch20.addGeometry(Part.LineSegment(Vector(59, 11, 0), Vector(70, 11, 0)), False)
sketch20.addConstraint(Sketcher.Constraint("Coincident", 0, 2, 1, 1))
sketch20.addConstraint(Sketcher.Constraint("Coincident", 1, 2, 2, 1))
sketch20.addConstraint(Sketcher.Constraint("Coincident", 2, 2, 0, 1))
sketch20.addConstraint(Sketcher.Constraint("Coincident", 3, 2, 4, 1))
sketch20.addConstraint(Sketcher.Constraint("Coincident", 4, 2, 5, 1))
sketch20.addConstraint(Sketcher.Constraint("Coincident", 5, 2, 3, 1))
sketch20.addConstraint(Sketcher.Constraint("Coincident", 6, 2, 7, 1))
sketch20.addConstraint(Sketcher.Constraint("Coincident", 7, 2, 8, 1))
sketch20.addConstraint(Sketcher.Constraint("Coincident", 8, 2, 6, 1))
sketch20.addConstraint(Sketcher.Constraint("Coincident", 9, 2, 10, 1))
sketch20.addConstraint(Sketcher.Constraint("Coincident", 10, 2, 11, 1))
sketch20.addConstraint(Sketcher.Constraint("Coincident", 11, 2, 9, 1))
sketch20.addConstraint(Sketcher.Constraint("Vertical", 0))
sketch20.addConstraint(Sketcher.Constraint("Horizontal", 2))
sketch20.addConstraint(Sketcher.Constraint("Horizontal", 3))
sketch20.addConstraint(Sketcher.Constraint("Vertical", 5))
sketch20.addConstraint(Sketcher.Constraint("Horizontal", 6))
sketch20.addConstraint(Sketcher.Constraint("Vertical", 8))
sketch20.addConstraint(Sketcher.Constraint("Vertical", 9))
sketch20.addConstraint(Sketcher.Constraint("Horizontal", 11))
sketch20.addConstraint(Sketcher.Constraint("Symmetric", 1, 2, 6, 2, -2))
sketch20.addConstraint(Sketcher.Constraint("Symmetric", 0, 2, 7, 2, -2))
sketch20.addConstraint(Sketcher.Constraint("Symmetric", 4, 2, 9, 2, -2))
sketch20.addConstraint(Sketcher.Constraint("Symmetric", 3, 2, 10, 2, -2))
sketch20.addConstraint(Sketcher.Constraint("Parallel", 4, 7))
sketch20.addConstraint(Sketcher.Constraint("Horizontal", 2, 2, 3, 2))
sketch20.addConstraint(Sketcher.Constraint("Horizontal", 0, 2, 4, 2))
sketch20.addConstraint(Sketcher.Constraint("DistanceY", 0, 1, 0, 2, Q("5 mm")))
sketch20.addConstraint(Sketcher.Constraint("Angle", 1, Q("-155 deg")))
sketch20.addConstraint(Sketcher.Constraint("DistanceX", 0, 2, -1, 1, Q("25 mm")))
sketch20.addConstraint(Sketcher.Constraint("DistanceX", 4, 2, -1, 1, Q("70 mm")))
sketch20.addConstraint(Sketcher.Constraint("DistanceY", -1, 1, 0, 2, Q("16.25 mm")))
pad3 = body.newObject("PartDesign::Pad", "Pad002")
pad3.Profile = sketch20
pad3.Length = 20
pad3.Reversed = True

doc.recompute()
